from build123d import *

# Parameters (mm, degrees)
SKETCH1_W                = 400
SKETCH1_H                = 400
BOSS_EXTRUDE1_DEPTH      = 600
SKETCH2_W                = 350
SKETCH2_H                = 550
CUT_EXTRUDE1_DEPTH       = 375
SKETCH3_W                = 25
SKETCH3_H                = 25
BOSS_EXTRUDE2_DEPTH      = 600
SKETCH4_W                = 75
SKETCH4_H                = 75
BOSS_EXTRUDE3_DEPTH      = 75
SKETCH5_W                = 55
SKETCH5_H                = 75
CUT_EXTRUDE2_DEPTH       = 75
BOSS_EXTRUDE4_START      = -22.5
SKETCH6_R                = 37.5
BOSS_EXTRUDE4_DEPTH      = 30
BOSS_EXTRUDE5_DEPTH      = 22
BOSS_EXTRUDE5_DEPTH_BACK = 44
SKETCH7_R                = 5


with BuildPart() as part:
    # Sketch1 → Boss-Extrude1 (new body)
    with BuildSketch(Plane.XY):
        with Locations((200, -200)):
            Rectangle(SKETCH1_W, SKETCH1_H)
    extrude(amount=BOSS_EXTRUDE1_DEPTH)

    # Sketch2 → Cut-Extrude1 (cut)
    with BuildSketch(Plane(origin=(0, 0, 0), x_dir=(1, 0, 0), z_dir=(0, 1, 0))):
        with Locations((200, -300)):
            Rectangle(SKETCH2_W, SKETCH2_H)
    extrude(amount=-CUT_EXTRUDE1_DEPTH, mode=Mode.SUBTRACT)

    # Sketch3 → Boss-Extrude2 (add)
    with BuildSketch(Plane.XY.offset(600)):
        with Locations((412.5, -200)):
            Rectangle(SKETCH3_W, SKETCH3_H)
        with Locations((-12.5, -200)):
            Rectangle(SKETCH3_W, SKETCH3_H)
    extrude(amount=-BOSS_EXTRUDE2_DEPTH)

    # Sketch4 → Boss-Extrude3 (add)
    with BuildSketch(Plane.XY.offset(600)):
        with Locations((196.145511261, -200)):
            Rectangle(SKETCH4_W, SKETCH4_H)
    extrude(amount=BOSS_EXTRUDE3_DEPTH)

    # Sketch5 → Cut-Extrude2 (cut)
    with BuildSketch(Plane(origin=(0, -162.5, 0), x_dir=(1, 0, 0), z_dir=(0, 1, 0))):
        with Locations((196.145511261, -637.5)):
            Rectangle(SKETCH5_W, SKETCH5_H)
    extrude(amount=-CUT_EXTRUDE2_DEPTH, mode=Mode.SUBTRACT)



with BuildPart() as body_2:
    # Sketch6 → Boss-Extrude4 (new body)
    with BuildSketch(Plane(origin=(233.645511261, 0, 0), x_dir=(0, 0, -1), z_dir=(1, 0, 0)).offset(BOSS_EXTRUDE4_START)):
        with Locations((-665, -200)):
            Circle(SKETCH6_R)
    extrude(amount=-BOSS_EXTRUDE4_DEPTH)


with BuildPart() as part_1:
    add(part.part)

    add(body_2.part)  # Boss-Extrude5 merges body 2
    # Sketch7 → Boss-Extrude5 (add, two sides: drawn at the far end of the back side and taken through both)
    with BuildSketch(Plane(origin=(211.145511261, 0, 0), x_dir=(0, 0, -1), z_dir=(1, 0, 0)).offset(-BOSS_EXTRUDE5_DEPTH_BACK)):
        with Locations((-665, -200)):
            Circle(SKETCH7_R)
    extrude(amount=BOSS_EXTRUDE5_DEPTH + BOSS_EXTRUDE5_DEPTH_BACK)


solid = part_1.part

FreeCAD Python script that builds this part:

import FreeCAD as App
import Part
import Sketcher

V = App.Vector
Q = App.Units.Quantity


def add_polygon(sketch, points):
    """Adds a closed chain of lines whose ends are joined by coincident constraints."""
    first, n = sketch.GeometryCount, len(points)
    for a, b in zip(points, points[1:] + points[:1]):
        sketch.addGeometry(Part.LineSegment(App.Vector(*a, 0), App.Vector(*b, 0)), False)
    for i in range(n):
        sketch.addConstraint(Sketcher.Constraint("Coincident", first + i, 2, first + (i + 1) % n, 1))

doc = App.newDocument("Part")
params = doc.addObject("Spreadsheet::Sheet", "Params")
for row, (alias, value) in enumerate([
    ("sketch1_width", "400 mm"),
    ("pad1_length", "600 mm"),
    ("sketch2_width", "350 mm"),
    ("sketch2_height", "550 mm"),
    ("pocket1_length", "375 mm"),
    ("sketch3_width", "25 mm"),
    ("pad2_length", "600 mm"),
    ("sketch4_width", "75 mm"),
    ("pad3_length", "75 mm"),
    ("sketch5_width", "55 mm"),
    ("sketch5_height", "75 mm"),
    ("pocket2_length", "75 mm"),
    ("sketch6_diameter", "75 mm"),
    ("pad4_length", "30 mm"),
    ("sketch7_diameter", "10 mm"),
    ("pad5_length", "22 mm"),
    ("pad5_length2", "44 mm"),
], start=1):
    params.set(f"A{row}", alias)
    params.set(f"B{row}", "=" + value)
    params.setAlias(f"B{row}", alias)

body = doc.addObject("PartDesign::Body", "Body")

# Sketch on XY plane
sketch1 = body.newObject("Sketcher::SketchObject", "Sketch")
sketch1.AttachmentSupport = (doc.getObject("XY_Plane"), [""])
sketch1.MapMode = "FlatFace"
add_polygon(sketch1, [(0, 0), (0, -400), (400, -400), (400, 0)])  # lines 0-3
sketch1.addConstraint(Sketcher.Constraint("Vertical", 0))
sketch1.addConstraint(Sketcher.Constraint("Horizontal", 1))
sketch1.addConstraint(Sketcher.Constraint("Vertical", 2))
sketch1.addConstraint(Sketcher.Constraint("Horizontal", 3))
sketch1.addConstraint(Sketcher.Constraint("Coincident", 3, 2, -1, 1))
sketch1.addConstraint(Sketcher.Constraint("Equal", 3, 0))
sketch1.addConstraint(Sketcher.Constraint("DistanceX", 1, 1, 1, 2, Q("400 mm")))
sketch1.setExpression("Constraints[10]", "Params.sketch1_width")
pad1 = body.newObject("PartDesign::Pad", "Pad")
pad1.Profile = sketch1
pad1.setExpression("Length", "Params.pad1_length")

# Sketch on XZ plane
sketch2 = body.newObject("Sketcher::SketchObject", "Sketch001")
sketch2.AttachmentSupport = (doc.getObject("XZ_Plane"), [""])
sketch2.MapMode = "FlatFace"
add_polygon(sketch2, [(25, 25), (25, 575), (375, 575), (375, 25)])  # lines 0-3
sketch2.addConstraint(Sketcher.Constraint("Vertical", 0))
sketch2.addConstraint(Sketcher.Constraint("Horizontal", 1))
sketch2.addConstraint(Sketcher.Constraint("Vertical", 2))
sketch2.addConstraint(Sketcher.Constraint("Horizontal", 3))
sketch2.addConstraint(Sketcher.Constraint("DistanceX", 1, 1, 1, 2, Q("350 mm")))
sketch2.addConstraint(Sketcher.Constraint("DistanceY", 0, 1, 0, 2, Q("550 mm")))
sketch2.addConstraint(Sketcher.Constraint("DistanceX", -1, 1, 0, 2, Q("25 mm")))
sketch2.addConstraint(Sketcher.Constraint("DistanceY", -1, 1, 0, 2, Q("575 mm")))
sketch2.setExpression("Constraints[8]", "Params.sketch2_width")
sketch2.setExpression("Constraints[9]", "Params.sketch2_height")
pocket1 = body.newObject("PartDesign::Pocket", "Pocket")
pocket1.Profile = sketch2
pocket1.setExpression("Length", "Params.pocket1_length")
pocket1.Reversed = True

# Sketch on XY plane
sketch3 = body.newObject("Sketcher::SketchObject", "Sketch002")
sketch3.AttachmentSupport = (doc.getObject("XY_Plane"), [""])
sketch3.MapMode = "FlatFace"
sketch3.AttachmentOffset = App.Placement(V(0, 0, 600), App.Rotation())
add_polygon(sketch3, [(400, -188), (400, -212), (425, -212), (425, -188)])  # lines 0-3
add_polygon(sketch3, [(-25, -188), (-25, -212), (0, -212), (0, -188)])  # lines 4-7
sketch3.addConstraint(Sketcher.Constraint("Vertical", 0))
sketch3.addConstraint(Sketcher.Constraint("Horizontal", 1))
sketch3.addConstraint(Sketcher.Constraint("Vertical", 2))
sketch3.addConstraint(Sketcher.Constraint("Horizontal", 3))
sketch3.addConstraint(Sketcher.Constraint("Vertical", 4))
sketch3.addConstraint(Sketcher.Constraint("Horizontal", 5))
sketch3.addConstraint(Sketcher.Constraint("Vertical", 6))
sketch3.addConstraint(Sketcher.Constraint("Horizontal", 7))
sketch3.addConstraint(Sketcher.Constraint("PointOnObject", 5, 2, -2))
sketch3.addConstraint(Sketcher.Constraint("Horizontal", 1, 2, 4, 2))
sketch3.addConstraint(Sketcher.Constraint("Horizontal", 3, 2, 6, 2))
sketch3.addConstraint(Sketcher.Constraint("Equal", 3, 5))
sketch3.addConstraint(Sketcher.Constraint("Equal", 7, 0))
sketch3.addConstraint(Sketcher.Constraint("DistanceX", 1, 1, 1, 2, Q("25 mm")))
sketch3.addConstraint(Sketcher.Constraint("DistanceX", -1, 1, 0, 2, Q("400 mm")))
sketch3.addConstraint(Sketcher.Constraint("DistanceY", 0, 2, -1, 1, Q("212.5 mm")))
sketch3.setExpression("Constraints[21]", "Params.sketch3_width")
pad2 = body.newObject("PartDesign::Pad", "Pad001")
pad2.Profile = sketch3
pad2.setExpression("Length", "Params.pad2_length")
pad2.Reversed = True

# Sketch on XY plane
sketch4 = body.newObject("Sketcher::SketchObject", "Sketch003")
sketch4.AttachmentSupport = (doc.getObject("XY_Plane"), [""])
sketch4.MapMode = "FlatFace"
sketch4.AttachmentOffset = App.Placement(V(0, 0, 600), App.Rotation())
add_polygon(sketch4, [(159, -162), (159, -238), (234, -238), (234, -162)])  # lines 0-3
sketch4.addConstraint(Sketcher.Constraint("Vertical", 0))
sketch4.addConstraint(Sketcher.Constraint("Horizontal", 1))
sketch4.addConstraint(Sketcher.Constraint("Vertical", 2))
sketch4.addConstraint(Sketcher.Constraint("Horizontal", 3))
sketch4.addConstraint(Sketcher.Constraint("Equal", 3, 0))
sketch4.addConstraint(Sketcher.Constraint("DistanceX", 1, 1, 1, 2, Q("75 mm")))
sketch4.addConstraint(Sketcher.Constraint("DistanceY", 0, 2, -1, 1, Q("237.5 mm")))
sketch4.addConstraint(Sketcher.Constraint("DistanceX", -1, 1, 0, 2, Q("158.645511 mm")))
sketch4.setExpression("Constraints[9]", "Params.sketch4_width")
pad3 = body.newObject("PartDesign::Pad", "Pad002")
pad3.Profile = sketch4
pad3.setExpression("Length", "Params.pad3_length")

# Sketch on XZ plane
sketch5 = body.newObject("Sketcher::SketchObject", "Sketch004")
sketch5.AttachmentSupport = (doc.getObject("XZ_Plane"), [""])
sketch5.MapMode = "FlatFace"
sketch5.AttachmentOffset = App.Placement(V(0, 0, 162.5), App.Rotation())
add_polygon(sketch5, [(169, 600), (169, 675), (224, 675), (224, 600)])  # lines 0-3
sketch5.addConstraint(Sketcher.Constraint("Vertical", 0))
sketch5.addConstraint(Sketcher.Constraint("Horizontal", 1))
sketch5.addConstraint(Sketcher.Constraint("Vertical", 2))
sketch5.addConstraint(Sketcher.Constraint("Horizontal", 3))
sketch5.addConstraint(Sketcher.Constraint("DistanceX", 1, 1, 1, 2, Q("55 mm")))
sketch5.addConstraint(Sketcher.Constraint("DistanceY", 0, 1, 0, 2, Q("75 mm")))
sketch5.addConstraint(Sketcher.Constraint("DistanceY", -1, 1, 0, 2, Q("675 mm")))
sketch5.addConstraint(Sketcher.Constraint("DistanceX", -1, 1, 0, 2, Q("168.645511 mm")))
sketch5.setExpression("Constraints[8]", "Params.sketch5_width")
sketch5.setExpression("Constraints[9]", "Params.sketch5_height")
pocket2 = body.newObject("PartDesign::Pocket", "Pocket001")
pocket2.Profile = sketch5
pocket2.setExpression("Length", "Params.pocket2_length")
pocket2.Reversed = True
body2 = doc.addObject("PartDesign::Body", "Body001")

# Sketch on YZ plane
sketch6 = body2.newObject("Sketcher::SketchObject", "Sketch005")
sketch6.AttachmentSupport = (doc.getObject("YZ_Plane001"), [""])
sketch6.MapMode = "FlatFace"
sketch6.AttachmentOffset = App.Placement(V(0, 0, 211.145511), App.Rotation())
sketch6.addGeometry(Part.Circle(V(-200, 665, 0), V(0, 0, 1), 38), False)
sketch6.addConstraint(Sketcher.Constraint("Diameter", 0, Q("75 mm")))
sketch6.addConstraint(Sketcher.Constraint("DistanceX", 0, 3, -1, 1, Q("200 mm")))
sketch6.addConstraint(Sketcher.Constraint("DistanceY", -1, 1, 0, 3, Q("665 mm")))
sketch6.setExpression("Constraints[0]", "Params.sketch6_diameter")
pad4 = body2.newObject("PartDesign::Pad", "Pad003")
pad4.Profile = sketch6
pad4.setExpression("Length", "Params.pad4_length")
pad4.Reversed = True
body.AllowCompound = True
doc.recompute()

boolean = body.newObject("PartDesign::Boolean", "Boolean")
boolean.Type = "Fuse"
boolean.addObjects([body2])

# Sketch on YZ plane
sketch7 = body.newObject("Sketcher::SketchObject", "Sketch006")
sketch7.AttachmentSupport = (doc.getObject("YZ_Plane"), [""])
sketch7.MapMode = "FlatFace"
sketch7.AttachmentOffset = App.Placement(V(0, 0, 211.145511), App.Rotation())
sketch7.addGeometry(Part.Circle(V(-200, 665, 0), V(0, 0, 1), 5), False)
sketch7.addConstraint(Sketcher.Constraint("Diameter", 0, Q("10 mm")))
sketch7.addConstraint(Sketcher.Constraint("DistanceX", 0, 3, -1, 1, Q("200 mm")))
sketch7.addConstraint(Sketcher.Constraint("DistanceY", -1, 1, 0, 3, Q("665 mm")))
sketch7.setExpression("Constraints[0]", "Params.sketch7_diameter")
pad5 = body.newObject("PartDesign::Pad", "Pad004")
pad5.Profile = sketch7
pad5.Type = "TwoLengths"
pad5.setExpression("Length", "Params.pad5_length")
pad5.setExpression("Length2", "Params.pad5_length2")

doc.recompute()
